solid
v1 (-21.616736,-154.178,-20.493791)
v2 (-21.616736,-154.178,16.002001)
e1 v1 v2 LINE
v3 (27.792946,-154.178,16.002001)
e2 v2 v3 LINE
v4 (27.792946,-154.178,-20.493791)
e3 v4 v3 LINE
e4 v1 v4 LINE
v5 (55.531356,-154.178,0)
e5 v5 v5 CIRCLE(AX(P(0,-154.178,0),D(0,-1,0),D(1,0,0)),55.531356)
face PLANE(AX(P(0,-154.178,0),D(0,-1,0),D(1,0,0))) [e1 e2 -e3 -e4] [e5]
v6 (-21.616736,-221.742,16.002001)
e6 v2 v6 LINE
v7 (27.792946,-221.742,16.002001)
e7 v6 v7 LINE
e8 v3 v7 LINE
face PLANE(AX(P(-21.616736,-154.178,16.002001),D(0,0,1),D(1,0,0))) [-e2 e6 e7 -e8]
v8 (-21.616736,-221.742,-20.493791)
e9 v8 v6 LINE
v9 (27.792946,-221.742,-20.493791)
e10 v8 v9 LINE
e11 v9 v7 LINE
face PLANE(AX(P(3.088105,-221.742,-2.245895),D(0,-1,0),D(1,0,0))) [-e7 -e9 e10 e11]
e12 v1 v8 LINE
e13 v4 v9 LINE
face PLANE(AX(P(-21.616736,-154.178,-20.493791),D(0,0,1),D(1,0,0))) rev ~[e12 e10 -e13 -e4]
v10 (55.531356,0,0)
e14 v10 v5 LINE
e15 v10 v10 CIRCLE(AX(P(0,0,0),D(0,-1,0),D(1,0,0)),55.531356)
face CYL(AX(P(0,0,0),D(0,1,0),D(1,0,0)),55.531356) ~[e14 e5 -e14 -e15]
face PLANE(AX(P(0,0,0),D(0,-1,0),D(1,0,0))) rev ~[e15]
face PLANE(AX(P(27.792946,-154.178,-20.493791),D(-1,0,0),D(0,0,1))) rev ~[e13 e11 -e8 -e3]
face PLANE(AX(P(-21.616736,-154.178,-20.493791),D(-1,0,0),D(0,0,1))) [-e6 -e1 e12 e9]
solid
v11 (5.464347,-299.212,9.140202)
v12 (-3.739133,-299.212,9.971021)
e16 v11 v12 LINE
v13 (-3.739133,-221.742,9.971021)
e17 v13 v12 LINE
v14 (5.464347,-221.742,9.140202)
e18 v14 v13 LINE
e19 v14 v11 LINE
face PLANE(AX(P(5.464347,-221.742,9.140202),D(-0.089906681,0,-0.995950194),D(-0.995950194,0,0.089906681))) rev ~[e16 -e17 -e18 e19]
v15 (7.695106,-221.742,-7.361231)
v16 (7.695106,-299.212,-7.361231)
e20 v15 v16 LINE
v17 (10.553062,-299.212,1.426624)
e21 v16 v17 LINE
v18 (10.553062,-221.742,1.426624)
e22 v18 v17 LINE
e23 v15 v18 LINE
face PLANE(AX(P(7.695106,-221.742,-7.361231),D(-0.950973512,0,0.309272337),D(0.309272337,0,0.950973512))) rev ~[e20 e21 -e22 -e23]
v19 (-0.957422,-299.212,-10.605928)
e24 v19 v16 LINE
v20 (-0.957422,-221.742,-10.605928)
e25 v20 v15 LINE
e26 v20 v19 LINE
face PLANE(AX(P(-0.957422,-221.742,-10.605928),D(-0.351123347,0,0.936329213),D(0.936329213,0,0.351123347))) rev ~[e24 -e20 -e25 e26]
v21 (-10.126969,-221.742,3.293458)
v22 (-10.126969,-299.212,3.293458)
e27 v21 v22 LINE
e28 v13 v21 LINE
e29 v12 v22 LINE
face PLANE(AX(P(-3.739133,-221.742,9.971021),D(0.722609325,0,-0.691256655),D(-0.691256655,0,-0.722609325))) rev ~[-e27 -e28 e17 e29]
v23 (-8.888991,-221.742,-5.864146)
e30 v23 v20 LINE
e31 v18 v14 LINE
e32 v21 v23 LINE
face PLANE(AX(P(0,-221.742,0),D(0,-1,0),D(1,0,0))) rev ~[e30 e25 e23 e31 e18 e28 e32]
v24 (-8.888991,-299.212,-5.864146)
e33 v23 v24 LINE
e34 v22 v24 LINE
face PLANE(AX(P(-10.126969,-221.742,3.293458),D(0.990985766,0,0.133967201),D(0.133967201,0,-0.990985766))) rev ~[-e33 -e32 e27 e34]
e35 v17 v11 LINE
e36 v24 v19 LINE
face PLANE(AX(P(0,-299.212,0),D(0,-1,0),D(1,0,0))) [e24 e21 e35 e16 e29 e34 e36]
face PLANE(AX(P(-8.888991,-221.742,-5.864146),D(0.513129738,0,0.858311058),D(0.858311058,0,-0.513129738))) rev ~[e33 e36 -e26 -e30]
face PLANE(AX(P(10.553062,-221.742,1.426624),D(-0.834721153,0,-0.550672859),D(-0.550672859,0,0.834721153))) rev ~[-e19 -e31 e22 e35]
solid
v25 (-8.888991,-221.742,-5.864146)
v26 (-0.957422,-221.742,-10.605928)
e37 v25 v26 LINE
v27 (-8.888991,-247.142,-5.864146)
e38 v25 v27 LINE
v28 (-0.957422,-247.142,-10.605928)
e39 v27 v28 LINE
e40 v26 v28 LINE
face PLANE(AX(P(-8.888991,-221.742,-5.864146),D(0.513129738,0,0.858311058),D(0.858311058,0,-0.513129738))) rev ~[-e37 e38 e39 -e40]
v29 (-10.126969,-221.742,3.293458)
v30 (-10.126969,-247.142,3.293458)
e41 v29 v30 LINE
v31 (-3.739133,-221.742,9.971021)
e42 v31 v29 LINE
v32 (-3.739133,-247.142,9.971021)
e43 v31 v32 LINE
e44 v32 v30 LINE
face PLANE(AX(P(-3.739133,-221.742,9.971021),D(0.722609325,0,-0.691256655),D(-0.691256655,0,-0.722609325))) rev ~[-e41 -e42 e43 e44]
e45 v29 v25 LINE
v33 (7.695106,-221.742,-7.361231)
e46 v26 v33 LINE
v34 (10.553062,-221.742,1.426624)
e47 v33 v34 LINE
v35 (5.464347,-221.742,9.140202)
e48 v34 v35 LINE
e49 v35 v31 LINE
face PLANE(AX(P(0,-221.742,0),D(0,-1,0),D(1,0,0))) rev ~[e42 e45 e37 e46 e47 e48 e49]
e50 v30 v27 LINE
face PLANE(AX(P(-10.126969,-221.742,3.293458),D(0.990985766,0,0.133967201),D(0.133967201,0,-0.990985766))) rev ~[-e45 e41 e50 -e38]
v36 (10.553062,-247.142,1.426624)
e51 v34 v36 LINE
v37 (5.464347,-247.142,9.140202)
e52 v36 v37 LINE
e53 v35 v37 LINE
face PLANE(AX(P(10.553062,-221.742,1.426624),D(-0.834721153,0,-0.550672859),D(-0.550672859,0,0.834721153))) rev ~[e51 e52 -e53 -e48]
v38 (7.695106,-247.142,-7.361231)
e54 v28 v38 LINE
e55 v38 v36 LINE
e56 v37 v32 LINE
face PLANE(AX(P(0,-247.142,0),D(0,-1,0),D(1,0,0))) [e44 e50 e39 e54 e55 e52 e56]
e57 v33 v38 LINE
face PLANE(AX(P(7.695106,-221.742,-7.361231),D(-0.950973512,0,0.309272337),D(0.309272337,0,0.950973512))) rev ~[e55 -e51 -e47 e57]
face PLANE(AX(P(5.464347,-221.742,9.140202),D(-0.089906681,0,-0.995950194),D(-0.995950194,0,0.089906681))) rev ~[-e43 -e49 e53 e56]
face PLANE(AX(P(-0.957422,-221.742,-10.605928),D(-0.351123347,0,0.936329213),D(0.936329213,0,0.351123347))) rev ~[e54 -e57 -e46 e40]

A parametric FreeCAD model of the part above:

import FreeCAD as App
import Part
import Sketcher

V = App.Vector
Q = App.Units.Quantity

doc = App.newDocument("Part")
body = doc.addObject("PartDesign::Body", "Body")

# Sketch on XZ plane
sketch1 = body.newObject("Sketcher::SketchObject", "Sketch")
sketch1.AttachmentSupport = (doc.getObject("XZ_Plane"), [""])
sketch1.MapMode = "FlatFace"
sketch1.addGeometry(Part.Circle(V(0, 0, 0), V(0, 0, 1), 56), False)
sketch1.addConstraint([
    Sketcher.Constraint("Coincident", 0, 3, -1, 1),
    Sketcher.Constraint("Diameter", 0, Q("111.062712 mm")),
])
pad1 = body.newObject("PartDesign::Pad", "Pad")
pad1.Profile = sketch1
pad1.Length = Q("6.07 in")

# Sketch on XZ plane
sketch2 = body.newObject("Sketcher::SketchObject", "Sketch001")
sketch2.AttachmentSupport = (doc.getObject("XZ_Plane"), [""])
sketch2.MapMode = "FlatFace"
sketch2.AttachmentOffset = App.Placement(V(0, 0, 6.07 * 25.4), App.Rotation())
sketch2.addGeometry([
    Part.LineSegment(V(-22, 16, 0), V(-22, -20, 0)),
    Part.LineSegment(V(-22, -20, 0), V(28, -20, 0)),
    Part.LineSegment(V(28, -20, 0), V(28, 16, 0)),
    Part.LineSegment(V(28, 16, 0), V(-22, 16, 0)),
], False)
sketch2.addConstraint([
    Sketcher.Constraint("Coincident", 0, 2, 1, 1),
    Sketcher.Constraint("Coincident", 1, 2, 2, 1),
    Sketcher.Constraint("Coincident", 2, 2, 3, 1),
    Sketcher.Constraint("Coincident", 3, 2, 0, 1),
    Sketcher.Constraint("Vertical", 0),
    Sketcher.Constraint("Horizontal", 1),
    Sketcher.Constraint("Vertical", 2),
    Sketcher.Constraint("Horizontal", 3),
    Sketcher.Constraint("DistanceY", -1, 1, 2, 2, Q("0.63 in")),
    Sketcher.Constraint("DistanceX", 1, 1, 1, 2, Q("49.409683 mm")),
    Sketcher.Constraint("DistanceY", 0, 2, 0, 1, Q("36.495792 mm")),
    Sketcher.Constraint("DistanceX", 0, 2, -1, 1, Q("21.616736 mm")),
])
pad2 = body.newObject("PartDesign::Pad", "Pad001")
pad2.Profile = sketch2
pad2.Length = Q("2.66 in")
body2 = doc.addObject("PartDesign::Body", "Body001")

# Sketch on XZ plane
sketch3 = body2.newObject("Sketcher::SketchObject", "Sketch002")
sketch3.AttachmentSupport = (doc.getObject("XZ_Plane001"), [""])
sketch3.MapMode = "FlatFace"
sketch3.AttachmentOffset = App.Placement(V(0, 0, 8.73 * 25.4), App.Rotation())
sketch3.addGeometry([
    Part.LineSegment(V(-1, -11, 0), V(8, -7, 0)),  # 0
    Part.LineSegment(V(8, -7, 0), V(11, 1, 0)),  # 1
    Part.LineSegment(V(11, 1, 0), V(5, 9, 0)),  # 2
    Part.LineSegment(V(5, 9, 0), V(-4, 10, 0)),  # 3
    Part.LineSegment(V(-4, 10, 0), V(-10, 3, 0)),  # 4
    Part.LineSegment(V(-10, 3, 0), V(-9, -6, 0)),  # 5
    Part.LineSegment(V(-9, -6, 0), V(-1, -11, 0)),  # 6
], False)
sketch3.addConstraint([
    Sketcher.Constraint("Coincident", 0, 2, 1, 1),
    Sketcher.Constraint("Coincident", 1, 2, 2, 1),
    Sketcher.Constraint("Coincident", 2, 2, 3, 1),
    Sketcher.Constraint("Coincident", 3, 2, 4, 1),
    Sketcher.Constraint("Coincident", 4, 2, 5, 1),
    Sketcher.Constraint("Coincident", 5, 2, 6, 1),
    Sketcher.Constraint("Coincident", 6, 2, 0, 1),
    Sketcher.Constraint("Equal", 0, 1),
    Sketcher.Constraint("Equal", 1, 2),
    Sketcher.Constraint("Equal", 2, 3),
    Sketcher.Constraint("Equal", 3, 4),
    Sketcher.Constraint("Equal", 4, 5),
    Sketcher.Constraint("Equal", 5, 6),
    Sketcher.Constraint("DistanceY", 0, 2, -1, 1, Q("7.361231 mm")),
    Sketcher.Constraint("DistanceY", -1, 1, 3, 2, Q("9.971021 mm")),
    Sketcher.Constraint("DistanceX", 4, 2, -1, 1, Q("10.126969 mm")),
    Sketcher.Constraint("DistanceY", -1, 1, 4, 2, Q("3.293458 mm")),
    Sketcher.Constraint("DistanceX", 5, 2, -1, 1, Q("8.888991 mm")),
    Sketcher.Constraint("DistanceX", 6, 2, -1, 1, Q("0.957422 mm")),
    Sketcher.Constraint("DistanceX", 2, 2, 0, 2, Q("2.230759 mm")),
    Sketcher.Constraint("DistanceX", 3, 2, 2, 2, Q("9.20348 mm")),
])
pad3 = body2.newObject("PartDesign::Pad", "Pad002")
pad3.Profile = sketch3
pad3.Length = Q("1 in")
body3 = doc.addObject("PartDesign::Body", "Body002")

# Sketch on XZ plane
sketch4 = body3.newObject("Sketcher::SketchObject", "Sketch003")
sketch4.AttachmentSupport = (doc.getObject("XZ_Plane002"), [""])
sketch4.MapMode = "FlatFace"
sketch4.AttachmentOffset = App.Placement(V(0, 0, 8.73 * 25.4), App.Rotation())
sketch4.addGeometry([
    Part.LineSegment(V(-1, -11, 0), V(8, -7, 0)),  # 0
    Part.LineSegment(V(8, -7, 0), V(11, 1, 0)),  # 1
    Part.LineSegment(V(11, 1, 0), V(5, 9, 0)),  # 2
    Part.LineSegment(V(5, 9, 0), V(-4, 10, 0)),  # 3
    Part.LineSegment(V(-4, 10, 0), V(-10, 3, 0)),  # 4
    Part.LineSegment(V(-10, 3, 0), V(-9, -6, 0)),  # 5
    Part.LineSegment(V(-9, -6, 0), V(-1, -11, 0)),  # 6
], False)
sketch4.addConstraint([
    Sketcher.Constraint("Coincident", 0, 2, 1, 1),
    Sketcher.Constraint("Coincident", 1, 2, 2, 1),
    Sketcher.Constraint("Coincident", 2, 2, 3, 1),
    Sketcher.Constraint("Coincident", 3, 2, 4, 1),
    Sketcher.Constraint("Coincident", 4, 2, 5, 1),
    Sketcher.Constraint("Coincident", 5, 2, 6, 1),
    Sketcher.Constraint("Coincident", 6, 2, 0, 1),
    Sketcher.Constraint("Equal", 0, 1),
    Sketcher.Constraint("Equal", 1, 2),
    Sketcher.Constraint("Equal", 2, 3),
    Sketcher.Constraint("Equal", 3, 4),
    Sketcher.Constraint("Equal", 4, 5),
    Sketcher.Constraint("Equal", 5, 6),
    Sketcher.Constraint("DistanceY", 0, 2, -1, 1, Q("7.361231 mm")),
    Sketcher.Constraint("DistanceY", -1, 1, 3, 2, Q("9.971021 mm")),
    Sketcher.Constraint("DistanceX", 4, 2, -1, 1, Q("10.126969 mm")),
    Sketcher.Constraint("DistanceY", -1, 1, 4, 2, Q("3.293458 mm")),
    Sketcher.Constraint("DistanceX", 5, 2, -1, 1, Q("8.888991 mm")),
    Sketcher.Constraint("DistanceX", 6, 2, -1, 1, Q("0.957422 mm")),
    Sketcher.Constraint("DistanceX", 2, 2, 0, 2, Q("2.230759 mm")),
    Sketcher.Constraint("DistanceX", 3, 2, 2, 2, Q("9.20348 mm")),
])
pad4 = body3.newObject("PartDesign::Pad", "Pad003")
pad4.Profile = sketch4
pad4.Length = Q("3.05 in")

doc.recompute()
